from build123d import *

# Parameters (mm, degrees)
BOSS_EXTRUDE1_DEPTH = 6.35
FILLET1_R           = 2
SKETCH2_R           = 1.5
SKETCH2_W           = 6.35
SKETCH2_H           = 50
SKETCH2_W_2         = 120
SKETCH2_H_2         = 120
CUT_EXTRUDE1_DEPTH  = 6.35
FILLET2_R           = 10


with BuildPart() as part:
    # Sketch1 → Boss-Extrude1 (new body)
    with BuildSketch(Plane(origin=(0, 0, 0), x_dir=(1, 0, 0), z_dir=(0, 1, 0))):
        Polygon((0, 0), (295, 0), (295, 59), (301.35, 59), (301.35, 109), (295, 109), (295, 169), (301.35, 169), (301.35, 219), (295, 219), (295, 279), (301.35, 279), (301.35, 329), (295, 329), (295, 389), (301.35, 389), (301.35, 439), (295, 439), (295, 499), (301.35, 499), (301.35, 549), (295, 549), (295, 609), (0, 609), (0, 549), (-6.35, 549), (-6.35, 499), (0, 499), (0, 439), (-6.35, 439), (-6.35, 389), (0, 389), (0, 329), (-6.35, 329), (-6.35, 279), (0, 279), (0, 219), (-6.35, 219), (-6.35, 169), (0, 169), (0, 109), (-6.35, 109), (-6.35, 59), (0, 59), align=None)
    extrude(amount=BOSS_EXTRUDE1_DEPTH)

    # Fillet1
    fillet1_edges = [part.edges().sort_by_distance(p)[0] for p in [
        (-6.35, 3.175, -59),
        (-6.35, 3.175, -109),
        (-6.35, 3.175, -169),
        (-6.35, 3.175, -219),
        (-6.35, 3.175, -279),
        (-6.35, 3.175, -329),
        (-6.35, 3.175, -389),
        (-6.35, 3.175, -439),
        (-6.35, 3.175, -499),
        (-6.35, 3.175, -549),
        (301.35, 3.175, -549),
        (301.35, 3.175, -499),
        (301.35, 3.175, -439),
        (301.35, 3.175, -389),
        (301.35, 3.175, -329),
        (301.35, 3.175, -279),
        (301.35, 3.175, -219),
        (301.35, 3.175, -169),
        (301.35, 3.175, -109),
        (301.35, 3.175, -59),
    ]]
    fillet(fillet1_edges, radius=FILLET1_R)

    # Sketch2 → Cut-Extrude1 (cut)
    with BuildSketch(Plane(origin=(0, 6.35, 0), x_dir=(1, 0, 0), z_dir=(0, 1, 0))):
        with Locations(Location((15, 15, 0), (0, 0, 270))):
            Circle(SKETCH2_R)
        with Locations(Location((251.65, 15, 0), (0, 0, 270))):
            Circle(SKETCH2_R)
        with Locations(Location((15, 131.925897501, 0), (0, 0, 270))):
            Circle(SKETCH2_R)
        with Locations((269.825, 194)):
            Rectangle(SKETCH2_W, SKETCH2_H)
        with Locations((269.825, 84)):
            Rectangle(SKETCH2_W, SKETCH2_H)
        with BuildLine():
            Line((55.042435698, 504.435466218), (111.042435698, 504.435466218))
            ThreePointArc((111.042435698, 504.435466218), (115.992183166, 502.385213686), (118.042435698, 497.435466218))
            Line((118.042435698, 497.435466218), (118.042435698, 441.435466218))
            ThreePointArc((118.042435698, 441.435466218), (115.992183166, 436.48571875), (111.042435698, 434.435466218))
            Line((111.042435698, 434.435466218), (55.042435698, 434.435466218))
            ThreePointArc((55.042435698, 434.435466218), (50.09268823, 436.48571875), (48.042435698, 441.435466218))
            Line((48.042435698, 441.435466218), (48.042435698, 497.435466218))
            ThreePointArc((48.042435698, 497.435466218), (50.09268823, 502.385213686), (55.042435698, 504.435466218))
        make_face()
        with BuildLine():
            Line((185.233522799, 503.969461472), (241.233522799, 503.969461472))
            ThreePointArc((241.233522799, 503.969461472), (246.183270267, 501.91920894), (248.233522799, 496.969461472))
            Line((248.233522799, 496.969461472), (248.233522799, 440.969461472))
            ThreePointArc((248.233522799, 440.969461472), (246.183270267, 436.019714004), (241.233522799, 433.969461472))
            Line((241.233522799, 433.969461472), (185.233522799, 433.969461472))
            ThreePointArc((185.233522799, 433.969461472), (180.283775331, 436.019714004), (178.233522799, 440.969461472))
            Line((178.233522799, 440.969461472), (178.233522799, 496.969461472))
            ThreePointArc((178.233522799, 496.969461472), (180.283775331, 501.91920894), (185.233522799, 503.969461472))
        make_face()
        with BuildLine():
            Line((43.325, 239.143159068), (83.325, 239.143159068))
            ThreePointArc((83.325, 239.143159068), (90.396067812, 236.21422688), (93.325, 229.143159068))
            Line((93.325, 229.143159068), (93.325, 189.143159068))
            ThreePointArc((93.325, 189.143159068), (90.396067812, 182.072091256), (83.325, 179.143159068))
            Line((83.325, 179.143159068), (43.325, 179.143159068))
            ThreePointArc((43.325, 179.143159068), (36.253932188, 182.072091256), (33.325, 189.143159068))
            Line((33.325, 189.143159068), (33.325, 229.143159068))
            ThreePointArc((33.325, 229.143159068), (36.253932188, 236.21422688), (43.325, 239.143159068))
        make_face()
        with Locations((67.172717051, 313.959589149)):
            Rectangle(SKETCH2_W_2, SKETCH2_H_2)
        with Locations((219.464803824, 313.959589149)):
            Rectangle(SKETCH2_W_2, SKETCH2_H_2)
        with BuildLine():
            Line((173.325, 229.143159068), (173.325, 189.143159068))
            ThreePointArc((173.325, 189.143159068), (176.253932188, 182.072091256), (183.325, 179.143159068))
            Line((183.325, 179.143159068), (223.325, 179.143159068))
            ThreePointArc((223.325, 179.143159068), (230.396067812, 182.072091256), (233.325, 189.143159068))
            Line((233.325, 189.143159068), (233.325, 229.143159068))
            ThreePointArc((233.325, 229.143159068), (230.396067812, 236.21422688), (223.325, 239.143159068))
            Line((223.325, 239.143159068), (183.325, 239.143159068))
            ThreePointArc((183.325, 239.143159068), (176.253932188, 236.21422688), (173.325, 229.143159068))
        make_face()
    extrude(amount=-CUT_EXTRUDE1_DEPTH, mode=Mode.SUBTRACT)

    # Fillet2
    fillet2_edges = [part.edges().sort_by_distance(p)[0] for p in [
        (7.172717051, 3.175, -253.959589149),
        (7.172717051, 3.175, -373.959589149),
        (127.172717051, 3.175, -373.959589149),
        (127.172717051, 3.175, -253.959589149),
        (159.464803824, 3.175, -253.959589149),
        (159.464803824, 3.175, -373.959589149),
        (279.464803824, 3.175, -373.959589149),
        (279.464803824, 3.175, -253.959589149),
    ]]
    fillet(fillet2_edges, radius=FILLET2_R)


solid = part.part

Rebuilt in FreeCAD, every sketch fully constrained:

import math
import FreeCAD as App
import Part
import Sketcher


def edges_at(feature, points):
    """Names of the edges that pass closest to the given points."""
    edges = feature.Shape.Edges
    near = lambda p: min(range(len(edges)), key=lambda i: edges[i].distToShape(Part.Vertex(*p))[0])
    return sorted({f"Edge{near(p) + 1}" for p in points})

doc = App.newDocument("Part")
params = doc.addObject("Spreadsheet::Sheet", "Params")
for row, (alias, value) in enumerate([
    ("sketch1_width", "295 mm"),
    ("sketch1_height", "59 mm"),
    ("sketch1_height2", "50 mm"),
    ("sketch1_height3", "60 mm"),
    ("sketch1_width2", "6.35 mm"),
    ("pad1_length", "6.35 mm"),
    ("fillet_radius", "2 mm"),
    ("sketch2_diameter", "3 mm"),
    ("sketch2_radius", "7 mm"),
    ("sketch2_radius2", "10 mm"),
    ("sketch2_width", "56 mm"),
    ("sketch2_width2", "40 mm"),
    ("pocket1_length", "6.35 mm"),
    ("fillet2_radius", "10 mm"),
], start=1):
    params.set(f"A{row}", alias)
    params.set(f"B{row}", "=" + value)
    params.setAlias(f"B{row}", alias)

body = doc.addObject("PartDesign::Body", "Body")

# Sketch on XZ plane
sketch1 = body.newObject("Sketcher::SketchObject", "Sketch")
sketch1.AttachmentSupport = (doc.getObject("XZ_Plane"), [""])
sketch1.MapMode = "FlatFace"
sketch1.addGeometry(Part.LineSegment(App.Vector(0, 0, 0), App.Vector(295, 0, 0)), False)
sketch1.addGeometry(Part.LineSegment(App.Vector(295, 0, 0), App.Vector(295, -59, 0)), False)
sketch1.addGeometry(Part.LineSegment(App.Vector(295, -59, 0), App.Vector(301, -59, 0)), False)
sketch1.addGeometry(Part.LineSegment(App.Vector(301, -59, 0), App.Vector(301, -109, 0)), False)
sketch1.addGeometry(Part.LineSegment(App.Vector(301, -109, 0), App.Vector(295, -109, 0)), False)
sketch1.addGeometry(Part.LineSegment(App.Vector(295, -109, 0), App.Vector(295, -169, 0)), False)
sketch1.addGeometry(Part.LineSegment(App.Vector(295, -169, 0), App.Vector(301, -169, 0)), False)
sketch1.addGeometry(Part.LineSegment(App.Vector(301, -169, 0), App.Vector(301, -219, 0)), False)
sketch1.addGeometry(Part.LineSegment(App.Vector(301, -219, 0), App.Vector(295, -219, 0)), False)
sketch1.addGeometry(Part.LineSegment(App.Vector(295, -219, 0), App.Vector(295, -279, 0)), False)
sketch1.addGeometry(Part.LineSegment(App.Vector(295, -279, 0), App.Vector(301, -279, 0)), False)
sketch1.addGeometry(Part.LineSegment(App.Vector(301, -279, 0), App.Vector(301, -329, 0)), False)
sketch1.addGeometry(Part.LineSegment(App.Vector(301, -329, 0), App.Vector(295, -329, 0)), False)
sketch1.addGeometry(Part.LineSegment(App.Vector(295, -329, 0), App.Vector(295, -389, 0)), False)
sketch1.addGeometry(Part.LineSegment(App.Vector(295, -389, 0), App.Vector(301, -389, 0)), False)
sketch1.addGeometry(Part.LineSegment(App.Vector(301, -389, 0), App.Vector(301, -439, 0)), False)
sketch1.addGeometry(Part.LineSegment(App.Vector(301, -439, 0), App.Vector(295, -439, 0)), False)
sketch1.addGeometry(Part.LineSegment(App.Vector(295, -439, 0), App.Vector(295, -499, 0)), False)
sketch1.addGeometry(Part.LineSegment(App.Vector(295, -499, 0), App.Vector(301, -499, 0)), False)
sketch1.addGeometry(Part.LineSegment(App.Vector(301, -499, 0), App.Vector(301, -549, 0)), False)
sketch1.addGeometry(Part.LineSegment(App.Vector(301, -549, 0), App.Vector(295, -549, 0)), False)
sketch1.addGeometry(Part.LineSegment(App.Vector(295, -549, 0), App.Vector(295, -609, 0)), False)
sketch1.addGeometry(Part.LineSegment(App.Vector(295, -609, 0), App.Vector(0, -609, 0)), False)
sketch1.addGeometry(Part.LineSegment(App.Vector(0, -609, 0), App.Vector(0, -549, 0)), False)
sketch1.addGeometry(Part.LineSegment(App.Vector(0, -549, 0), App.Vector(-6, -549, 0)), False)
sketch1.addGeometry(Part.LineSegment(App.Vector(-6, -549, 0), App.Vector(-6, -499, 0)), False)
sketch1.addGeometry(Part.LineSegment(App.Vector(-6, -499, 0), App.Vector(0, -499, 0)), False)
sketch1.addGeometry(Part.LineSegment(App.Vector(0, -499, 0), App.Vector(0, -439, 0)), False)
sketch1.addGeometry(Part.LineSegment(App.Vector(0, -439, 0), App.Vector(-6, -439, 0)), False)
sketch1.addGeometry(Part.LineSegment(App.Vector(-6, -439, 0), App.Vector(-6, -389, 0)), False)
sketch1.addGeometry(Part.LineSegment(App.Vector(-6, -389, 0), App.Vector(0, -389, 0)), False)
sketch1.addGeometry(Part.LineSegment(App.Vector(0, -389, 0), App.Vector(0, -329, 0)), False)
sketch1.addGeometry(Part.LineSegment(App.Vector(0, -329, 0), App.Vector(-6, -329, 0)), False)
sketch1.addGeometry(Part.LineSegment(App.Vector(-6, -329, 0), App.Vector(-6, -279, 0)), False)
sketch1.addGeometry(Part.LineSegment(App.Vector(-6, -279, 0), App.Vector(0, -279, 0)), False)
sketch1.addGeometry(Part.LineSegment(App.Vector(0, -279, 0), App.Vector(0, -219, 0)), False)
sketch1.addGeometry(Part.LineSegment(App.Vector(0, -219, 0), App.Vector(-6, -219, 0)), False)
sketch1.addGeometry(Part.LineSegment(App.Vector(-6, -219, 0), App.Vector(-6, -169, 0)), False)
sketch1.addGeometry(Part.LineSegment(App.Vector(-6, -169, 0), App.Vector(0, -169, 0)), False)
sketch1.addGeometry(Part.LineSegment(App.Vector(0, -169, 0), App.Vector(0, -109, 0)), False)
sketch1.addGeometry(Part.LineSegment(App.Vector(0, -109, 0), App.Vector(-6, -109, 0)), False)
sketch1.addGeometry(Part.LineSegment(App.Vector(-6, -109, 0), App.Vector(-6, -59, 0)), False)
sketch1.addGeometry(Part.LineSegment(App.Vector(-6, -59, 0), App.Vector(0, -59, 0)), False)
sketch1.addGeometry(Part.LineSegment(App.Vector(0, -59, 0), App.Vector(0, 0, 0)), False)
sketch1.addConstraint(Sketcher.Constraint("Coincident", 0, 2, 1, 1))
sketch1.addConstraint(Sketcher.Constraint("Coincident", 1, 2, 2, 1))
sketch1.addConstraint(Sketcher.Constraint("Coincident", 2, 2, 3, 1))
sketch1.addConstraint(Sketcher.Constraint("Coincident", 3, 2, 4, 1))
sketch1.addConstraint(Sketcher.Constraint("Coincident", 4, 2, 5, 1))
sketch1.addConstraint(Sketcher.Constraint("Coincident", 5, 2, 6, 1))
sketch1.addConstraint(Sketcher.Constraint("Coincident", 6, 2, 7, 1))
sketch1.addConstraint(Sketcher.Constraint("Coincident", 7, 2, 8, 1))
sketch1.addConstraint(Sketcher.Constraint("Coincident", 8, 2, 9, 1))
sketch1.addConstraint(Sketcher.Constraint("Coincident", 9, 2, 10, 1))
sketch1.addConstraint(Sketcher.Constraint("Coincident", 10, 2, 11, 1))
sketch1.addConstraint(Sketcher.Constraint("Coincident", 11, 2, 12, 1))
sketch1.addConstraint(Sketcher.Constraint("Coincident", 12, 2, 13, 1))
sketch1.addConstraint(Sketcher.Constraint("Coincident", 13, 2, 14, 1))
sketch1.addConstraint(Sketcher.Constraint("Coincident", 14, 2, 15, 1))
sketch1.addConstraint(Sketcher.Constraint("Coincident", 15, 2, 16, 1))
sketch1.addConstraint(Sketcher.Constraint("Coincident", 16, 2, 17, 1))
sketch1.addConstraint(Sketcher.Constraint("Coincident", 17, 2, 18, 1))
sketch1.addConstraint(Sketcher.Constraint("Coincident", 18, 2, 19, 1))
sketch1.addConstraint(Sketcher.Constraint("Coincident", 19, 2, 20, 1))
sketch1.addConstraint(Sketcher.Constraint("Coincident", 20, 2, 21, 1))
sketch1.addConstraint(Sketcher.Constraint("Coincident", 21, 2, 22, 1))
sketch1.addConstraint(Sketcher.Constraint("Coincident", 22, 2, 23, 1))
sketch1.addConstraint(Sketcher.Constraint("Coincident", 23, 2, 24, 1))
sketch1.addConstraint(Sketcher.Constraint("Coincident", 24, 2, 25, 1))
sketch1.addConstraint(Sketcher.Constraint("Coincident", 25, 2, 26, 1))
sketch1.addConstraint(Sketcher.Constraint("Coincident", 26, 2, 27, 1))
sketch1.addConstraint(Sketcher.Constraint("Coincident", 27, 2, 28, 1))
sketch1.addConstraint(Sketcher.Constraint("Coincident", 28, 2, 29, 1))
sketch1.addConstraint(Sketcher.Constraint("Coincident", 29, 2, 30, 1))
sketch1.addConstraint(Sketcher.Constraint("Coincident", 30, 2, 31, 1))
sketch1.addConstraint(Sketcher.Constraint("Coincident", 31, 2, 32, 1))
sketch1.addConstraint(Sketcher.Constraint("Coincident", 32, 2, 33, 1))
sketch1.addConstraint(Sketcher.Constraint("Coincident", 33, 2, 34, 1))
sketch1.addConstraint(Sketcher.Constraint("Coincident", 34, 2, 35, 1))
sketch1.addConstraint(Sketcher.Constraint("Coincident", 35, 2, 36, 1))
sketch1.addConstraint(Sketcher.Constraint("Coincident", 36, 2, 37, 1))
sketch1.addConstraint(Sketcher.Constraint("Coincident", 37, 2, 38, 1))
sketch1.addConstraint(Sketcher.Constraint("Coincident", 38, 2, 39, 1))
sketch1.addConstraint(Sketcher.Constraint("Coincident", 39, 2, 40, 1))
sketch1.addConstraint(Sketcher.Constraint("Coincident", 40, 2, 41, 1))
sketch1.addConstraint(Sketcher.Constraint("Coincident", 41, 2, 42, 1))
sketch1.addConstraint(Sketcher.Constraint("Coincident", 42, 2, 43, 1))
sketch1.addConstraint(Sketcher.Constraint("Coincident", 43, 2, 0, 1))
sketch1.addConstraint(Sketcher.Constraint("Horizontal", 0))
sketch1.addConstraint(Sketcher.Constraint("Vertical", 1))
sketch1.addConstraint(Sketcher.Constraint("Horizontal", 2))
sketch1.addConstraint(Sketcher.Constraint("Vertical", 3))
sketch1.addConstraint(Sketcher.Constraint("Horizontal", 4))
sketch1.addConstraint(Sketcher.Constraint("Vertical", 5))
sketch1.addConstraint(Sketcher.Constraint("Horizontal", 6))
sketch1.addConstraint(Sketcher.Constraint("Vertical", 7))
sketch1.addConstraint(Sketcher.Constraint("Horizontal", 8))
sketch1.addConstraint(Sketcher.Constraint("Vertical", 9))
sketch1.addConstraint(Sketcher.Constraint("Horizontal", 10))
sketch1.addConstraint(Sketcher.Constraint("Vertical", 11))
sketch1.addConstraint(Sketcher.Constraint("Horizontal", 12))
sketch1.addConstraint(Sketcher.Constraint("Vertical", 13))
sketch1.addConstraint(Sketcher.Constraint("Horizontal", 14))
sketch1.addConstraint(Sketcher.Constraint("Vertical", 15))
sketch1.addConstraint(Sketcher.Constraint("Horizontal", 16))
sketch1.addConstraint(Sketcher.Constraint("Vertical", 17))
sketch1.addConstraint(Sketcher.Constraint("Horizontal", 18))
sketch1.addConstraint(Sketcher.Constraint("Vertical", 19))
sketch1.addConstraint(Sketcher.Constraint("Horizontal", 20))
sketch1.addConstraint(Sketcher.Constraint("Vertical", 21))
sketch1.addConstraint(Sketcher.Constraint("Horizontal", 22))
sketch1.addConstraint(Sketcher.Constraint("Vertical", 23))
sketch1.addConstraint(Sketcher.Constraint("Horizontal", 24))
sketch1.addConstraint(Sketcher.Constraint("Vertical", 25))
sketch1.addConstraint(Sketcher.Constraint("Horizontal", 26))
sketch1.addConstraint(Sketcher.Constraint("Vertical", 27))
sketch1.addConstraint(Sketcher.Constraint("Horizontal", 28))
sketch1.addConstraint(Sketcher.Constraint("Vertical", 29))
sketch1.addConstraint(Sketcher.Constraint("Horizontal", 30))
sketch1.addConstraint(Sketcher.Constraint("Vertical", 31))
sketch1.addConstraint(Sketcher.Constraint("Horizontal", 32))
sketch1.addConstraint(Sketcher.Constraint("Vertical", 33))
sketch1.addConstraint(Sketcher.Constraint("Horizontal", 34))
sketch1.addConstraint(Sketcher.Constraint("Vertical", 35))
sketch1.addConstraint(Sketcher.Constraint("Horizontal", 36))
sketch1.addConstraint(Sketcher.Constraint("Vertical", 37))
sketch1.addConstraint(Sketcher.Constraint("Horizontal", 38))
sketch1.addConstraint(Sketcher.Constraint("Vertical", 39))
sketch1.addConstraint(Sketcher.Constraint("Horizontal", 40))
sketch1.addConstraint(Sketcher.Constraint("Vertical", 41))
sketch1.addConstraint(Sketcher.Constraint("Horizontal", 42))
sketch1.addConstraint(Sketcher.Constraint("Vertical", 43))
sketch1.addConstraint(Sketcher.Constraint("Coincident", 43, 2, -1, 1))
sketch1.addConstraint(Sketcher.Constraint("PointOnObject", 22, 2, -2))
sketch1.addConstraint(Sketcher.Constraint("PointOnObject", 26, 2, -2))
sketch1.addConstraint(Sketcher.Constraint("PointOnObject", 30, 2, -2))
sketch1.addConstraint(Sketcher.Constraint("PointOnObject", 34, 2, -2))
sketch1.addConstraint(Sketcher.Constraint("PointOnObject", 38, 2, -2))
sketch1.addConstraint(Sketcher.Constraint("Horizontal", 20, 2, 23, 2))
sketch1.addConstraint(Sketcher.Constraint("Horizontal", 18, 2, 25, 2))
sketch1.addConstraint(Sketcher.Constraint("Horizontal", 16, 2, 27, 2))
sketch1.addConstraint(Sketcher.Constraint("Horizontal", 14, 2, 29, 2))
sketch1.addConstraint(Sketcher.Constraint("Horizontal", 12, 2, 31, 2))
sketch1.addConstraint(Sketcher.Constraint("Horizontal", 10, 2, 33, 2))
sketch1.addConstraint(Sketcher.Constraint("Horizontal", 8, 2, 35, 2))
sketch1.addConstraint(Sketcher.Constraint("Horizontal", 6, 2, 37, 2))
sketch1.addConstraint(Sketcher.Constraint("Horizontal", 4, 2, 39, 2))
sketch1.addConstraint(Sketcher.Constraint("Horizontal", 2, 2, 41, 2))
sketch1.addConstraint(Sketcher.Constraint("Vertical", 1, 2, 4, 2))
sketch1.addConstraint(Sketcher.Constraint("Vertical", 3, 2, 6, 2))
sketch1.addConstraint(Sketcher.Constraint("Vertical", 5, 2, 8, 2))
sketch1.addConstraint(Sketcher.Constraint("Vertical", 7, 2, 10, 2))
sketch1.addConstraint(Sketcher.Constraint("Vertical", 9, 2, 12, 2))
sketch1.addConstraint(Sketcher.Constraint("Vertical", 11, 2, 14, 2))
sketch1.addConstraint(Sketcher.Constraint("Vertical", 13, 2, 16, 2))
sketch1.addConstraint(Sketcher.Constraint("Vertical", 15, 2, 18, 2))
sketch1.addConstraint(Sketcher.Constraint("Vertical", 17, 2, 20, 2))
sketch1.addConstraint(Sketcher.Constraint("Vertical", 25, 2, 28, 2))
sketch1.addConstraint(Sketcher.Constraint("Vertical", 29, 2, 32, 2))
sketch1.addConstraint(Sketcher.Constraint("Vertical", 33, 2, 36, 2))
sketch1.addConstraint(Sketcher.Constraint("Vertical", 37, 2, 40, 2))
sketch1.addConstraint(Sketcher.Constraint("Equal", 20, 24))
sketch1.addConstraint(Sketcher.Constraint("Equal", 3, 7))
sketch1.addConstraint(Sketcher.Constraint("Equal", 5, 9))
sketch1.addConstraint(Sketcher.Constraint("Equal", 7, 11))
sketch1.addConstraint(Sketcher.Constraint("Equal", 9, 13))
sketch1.addConstraint(Sketcher.Constraint("Equal", 11, 15))
sketch1.addConstraint(Sketcher.Constraint("Equal", 13, 17))
sketch1.addConstraint(Sketcher.Constraint("Equal", 15, 19))
sketch1.addConstraint(Sketcher.Constraint("Equal", 17, 21))
sketch1.addConstraint(Sketcher.Constraint("DistanceX", 0, 1, 0, 2, 295.0))
sketch1.addConstraint(Sketcher.Constraint("DistanceY", 1, 2, 1, 1, 59.0))
sketch1.addConstraint(Sketcher.Constraint("DistanceY", 3, 2, 3, 1, 50.0))
sketch1.addConstraint(Sketcher.Constraint("DistanceY", 5, 2, 5, 1, 60.0))
sketch1.addConstraint(Sketcher.Constraint("DistanceX", 2, 1, 2, 2, 6.35))
sketch1.setExpression("Constraints[126]", "Params.sketch1_width")
sketch1.setExpression("Constraints[127]", "Params.sketch1_height")
sketch1.setExpression("Constraints[128]", "Params.sketch1_height2")
sketch1.setExpression("Constraints[129]", "Params.sketch1_height3")
sketch1.setExpression("Constraints[130]", "Params.sketch1_width2")
pad1 = body.newObject("PartDesign::Pad", "Pad")
pad1.Profile = sketch1
pad1.setExpression("Length", "Params.pad1_length")
pad1.Reversed = True
doc.recompute()

fillet = body.newObject("PartDesign::Fillet", "Fillet")
fillet.Base = (pad1, edges_at(pad1, [
    (-6.35, 3.175, -59),
    (-6.35, 3.175, -109),
    (-6.35, 3.175, -169),
    (-6.35, 3.175, -219),
    (-6.35, 3.175, -279),
    (-6.35, 3.175, -329),
    (-6.35, 3.175, -389),
    (-6.35, 3.175, -439),
    (-6.35, 3.175, -499),
    (-6.35, 3.175, -549),
    (301.35, 3.175, -549),
    (301.35, 3.175, -499),
    (301.35, 3.175, -439),
    (301.35, 3.175, -389),
    (301.35, 3.175, -329),
    (301.35, 3.175, -279),
    (301.35, 3.175, -219),
    (301.35, 3.175, -169),
    (301.35, 3.175, -109),
    (301.35, 3.175, -59),
]))
fillet.setExpression("Radius", "Params.fillet_radius")

# Sketch on XZ plane
sketch2 = body.newObject("Sketcher::SketchObject", "Sketch001")
sketch2.AttachmentSupport = (doc.getObject("XZ_Plane"), [""])
sketch2.MapMode = "FlatFace"
sketch2.AttachmentOffset = App.Placement(App.Vector(0, 0, -6.35), App.Rotation())
sketch2.addGeometry(Part.Circle(App.Vector(15, -15, 0), App.Vector(0, 0, 1), 1.5), False)
sketch2.addGeometry(Part.Circle(App.Vector(251.7, -15, 0), App.Vector(0, 0, 1), 1.5), False)
sketch2.addGeometry(Part.Circle(App.Vector(15, -131.9, 0), App.Vector(0, 0, 1), 1.5), False)
sketch2.addGeometry(Part.LineSegment(App.Vector(266.6, -219, 0), App.Vector(266.6, -169, 0)), False)
sketch2.addGeometry(Part.LineSegment(App.Vector(266.6, -169, 0), App.Vector(273, -169, 0)), False)
sketch2.addGeometry(Part.LineSegment(App.Vector(273, -169, 0), App.Vector(273, -219, 0)), False)
sketch2.addGeometry(Part.LineSegment(App.Vector(273, -219, 0), App.Vector(266.6, -219, 0)), False)
sketch2.addGeometry(Part.LineSegment(App.Vector(266.6, -109, 0), App.Vector(266.6, -59, 0)), False)
sketch2.addGeometry(Part.LineSegment(App.Vector(266.6, -59, 0), App.Vector(273, -59, 0)), False)
sketch2.addGeometry(Part.LineSegment(App.Vector(273, -59, 0), App.Vector(273, -109, 0)), False)
sketch2.addGeometry(Part.LineSegment(App.Vector(273, -109, 0), App.Vector(266.6, -109, 0)), False)
sketch2.addGeometry(Part.LineSegment(App.Vector(111, -504.4, 0), App.Vector(55, -504.4, 0)), False)
sketch2.addGeometry(Part.ArcOfCircle(Part.Circle(App.Vector(55, -497.4, 0), App.Vector(0, 0, 1), 7), math.radians(-180), math.radians(-90)), False)
sketch2.addGeometry(Part.LineSegment(App.Vector(48, -497.4, 0), App.Vector(48, -441.4, 0)), False)
sketch2.addGeometry(Part.ArcOfCircle(Part.Circle(App.Vector(55, -441.4, 0), App.Vector(0, 0, 1), 7), math.radians(90), math.radians(180)), False)
sketch2.addGeometry(Part.LineSegment(App.Vector(55, -434.4, 0), App.Vector(111, -434.4, 0)), False)
sketch2.addGeometry(Part.ArcOfCircle(Part.Circle(App.Vector(111, -441.4, 0), App.Vector(0, 0, 1), 7), math.radians(0), math.radians(90)), False)
sketch2.addGeometry(Part.LineSegment(App.Vector(118, -441.4, 0), App.Vector(118, -497.4, 0)), False)
sketch2.addGeometry(Part.ArcOfCircle(Part.Circle(App.Vector(111, -497.4, 0), App.Vector(0, 0, 1), 7), math.radians(-90), math.radians(0)), False)
sketch2.addGeometry(Part.LineSegment(App.Vector(241.2, -504, 0), App.Vector(185.2, -504, 0)), False)
sketch2.addGeometry(Part.ArcOfCircle(Part.Circle(App.Vector(185.2, -497, 0), App.Vector(0, 0, 1), 7), math.radians(-180), math.radians(-90)), False)
sketch2.addGeometry(Part.LineSegment(App.Vector(178.2, -497, 0), App.Vector(178.2, -441, 0)), False)
sketch2.addGeometry(Part.ArcOfCircle(Part.Circle(App.Vector(185.2, -441, 0), App.Vector(0, 0, 1), 7), math.radians(90), math.radians(180)), False)
sketch2.addGeometry(Part.LineSegment(App.Vector(185.2, -434, 0), App.Vector(241.2, -434, 0)), False)
sketch2.addGeometry(Part.ArcOfCircle(Part.Circle(App.Vector(241.2, -441, 0), App.Vector(0, 0, 1), 7), math.radians(0), math.radians(90)), False)
sketch2.addGeometry(Part.LineSegment(App.Vector(248.2, -441, 0), App.Vector(248.2, -497, 0)), False)
sketch2.addGeometry(Part.ArcOfCircle(Part.Circle(App.Vector(241.2, -497, 0), App.Vector(0, 0, 1), 7), math.radians(-90), math.radians(0)), False)
sketch2.addGeometry(Part.LineSegment(App.Vector(83.3, -239.1, 0), App.Vector(43.3, -239.1, 0)), False)
sketch2.addGeometry(Part.ArcOfCircle(Part.Circle(App.Vector(43.3, -229.1, 0), App.Vector(0, 0, 1), 10), math.radians(180), math.radians(270)), False)
sketch2.addGeometry(Part.LineSegment(App.Vector(33.3, -229.1, 0), App.Vector(33.3, -189.1, 0)), False)
sketch2.addGeometry(Part.ArcOfCircle(Part.Circle(App.Vector(43.3, -189.1, 0), App.Vector(0, 0, 1), 10), math.radians(90), math.radians(180)), False)
sketch2.addGeometry(Part.LineSegment(App.Vector(43.3, -179.1, 0), App.Vector(83.3, -179.1, 0)), False)
sketch2.addGeometry(Part.ArcOfCircle(Part.Circle(App.Vector(83.3, -189.1, 0), App.Vector(0, 0, 1), 10), math.radians(0), math.radians(90)), False)
sketch2.addGeometry(Part.LineSegment(App.Vector(93.3, -189.1, 0), App.Vector(93.3, -229.1, 0)), False)
sketch2.addGeometry(Part.ArcOfCircle(Part.Circle(App.Vector(83.3, -229.1, 0), App.Vector(0, 0, 1), 10), math.radians(-90), math.radians(0)), False)
sketch2.addGeometry(Part.LineSegment(App.Vector(7.2, -374, 0), App.Vector(7.2, -254, 0)), False)
sketch2.addGeometry(Part.LineSegment(App.Vector(7.2, -254, 0), App.Vector(127.2, -254, 0)), False)
sketch2.addGeometry(Part.LineSegment(App.Vector(127.2, -254, 0), App.Vector(127.2, -374, 0)), False)
sketch2.addGeometry(Part.LineSegment(App.Vector(127.2, -374, 0), App.Vector(7.2, -374, 0)), False)
sketch2.addGeometry(Part.LineSegment(App.Vector(159.5, -374, 0), App.Vector(159.5, -254, 0)), False)
sketch2.addGeometry(Part.LineSegment(App.Vector(159.5, -254, 0), App.Vector(279.5, -254, 0)), False)
sketch2.addGeometry(Part.LineSegment(App.Vector(279.5, -254, 0), App.Vector(279.5, -374, 0)), False)
sketch2.addGeometry(Part.LineSegment(App.Vector(279.5, -374, 0), App.Vector(159.5, -374, 0)), False)
sketch2.addGeometry(Part.LineSegment(App.Vector(173.3, -229.1, 0), App.Vector(173.3, -189.1, 0)), False)
sketch2.addGeometry(Part.ArcOfCircle(Part.Circle(App.Vector(183.3, -189.1, 0), App.Vector(0, 0, 1), 10), math.radians(90), math.radians(180)), False)
sketch2.addGeometry(Part.LineSegment(App.Vector(183.3, -179.1, 0), App.Vector(223.3, -179.1, 0)), False)
sketch2.addGeometry(Part.ArcOfCircle(Part.Circle(App.Vector(223.3, -189.1, 0), App.Vector(0, 0, 1), 10), math.radians(0), math.radians(90)), False)
sketch2.addGeometry(Part.LineSegment(App.Vector(233.3, -189.1, 0), App.Vector(233.3, -229.1, 0)), False)
sketch2.addGeometry(Part.ArcOfCircle(Part.Circle(App.Vector(223.3, -229.1, 0), App.Vector(0, 0, 1), 10), math.radians(-90), math.radians(0)), False)
sketch2.addGeometry(Part.LineSegment(App.Vector(223.3, -239.1, 0), App.Vector(183.3, -239.1, 0)), False)
sketch2.addGeometry(Part.ArcOfCircle(Part.Circle(App.Vector(183.3, -229.1, 0), App.Vector(0, 0, 1), 10), math.radians(180), math.radians(270)), False)
sketch2.addConstraint(Sketcher.Constraint("Coincident", 3, 2, 4, 1))
sketch2.addConstraint(Sketcher.Constraint("Coincident", 4, 2, 5, 1))
sketch2.addConstraint(Sketcher.Constraint("Coincident", 5, 2, 6, 1))
sketch2.addConstraint(Sketcher.Constraint("Coincident", 6, 2, 3, 1))
sketch2.addConstraint(Sketcher.Constraint("Coincident", 7, 2, 8, 1))
sketch2.addConstraint(Sketcher.Constraint("Coincident", 8, 2, 9, 1))
sketch2.addConstraint(Sketcher.Constraint("Coincident", 9, 2, 10, 1))
sketch2.addConstraint(Sketcher.Constraint("Coincident", 10, 2, 7, 1))
sketch2.addConstraint(Sketcher.Constraint("Tangent", 11, 2, 12, 2))
sketch2.addConstraint(Sketcher.Constraint("Tangent", 12, 1, 13, 1))
sketch2.addConstraint(Sketcher.Constraint("Tangent", 13, 2, 14, 2))
sketch2.addConstraint(Sketcher.Constraint("Tangent", 14, 1, 15, 1))
sketch2.addConstraint(Sketcher.Constraint("Tangent", 15, 2, 16, 2))
sketch2.addConstraint(Sketcher.Constraint("Tangent", 16, 1, 17, 1))
sketch2.addConstraint(Sketcher.Constraint("Tangent", 17, 2, 18, 2))
sketch2.addConstraint(Sketcher.Constraint("Tangent", 18, 1, 11, 1))
sketch2.addConstraint(Sketcher.Constraint("Tangent", 19, 2, 20, 2))
sketch2.addConstraint(Sketcher.Constraint("Tangent", 20, 1, 21, 1))
sketch2.addConstraint(Sketcher.Constraint("Tangent", 21, 2, 22, 2))
sketch2.addConstraint(Sketcher.Constraint("Tangent", 22, 1, 23, 1))
sketch2.addConstraint(Sketcher.Constraint("Tangent", 23, 2, 24, 2))
sketch2.addConstraint(Sketcher.Constraint("Tangent", 24, 1, 25, 1))
sketch2.addConstraint(Sketcher.Constraint("Tangent", 25, 2, 26, 2))
sketch2.addConstraint(Sketcher.Constraint("Tangent", 26, 1, 19, 1))
sketch2.addConstraint(Sketcher.Constraint("Tangent", 27, 2, 28, 2))
sketch2.addConstraint(Sketcher.Constraint("Tangent", 28, 1, 29, 1))
sketch2.addConstraint(Sketcher.Constraint("Tangent", 29, 2, 30, 2))
sketch2.addConstraint(Sketcher.Constraint("Tangent", 30, 1, 31, 1))
sketch2.addConstraint(Sketcher.Constraint("Tangent", 31, 2, 32, 2))
sketch2.addConstraint(Sketcher.Constraint("Tangent", 32, 1, 33, 1))
sketch2.addConstraint(Sketcher.Constraint("Tangent", 33, 2, 34, 2))
sketch2.addConstraint(Sketcher.Constraint("Tangent", 34, 1, 27, 1))
sketch2.addConstraint(Sketcher.Constraint("Coincident", 35, 2, 36, 1))
sketch2.addConstraint(Sketcher.Constraint("Coincident", 36, 2, 37, 1))
sketch2.addConstraint(Sketcher.Constraint("Coincident", 37, 2, 38, 1))
sketch2.addConstraint(Sketcher.Constraint("Coincident", 38, 2, 35, 1))
sketch2.addConstraint(Sketcher.Constraint("Coincident", 39, 2, 40, 1))
sketch2.addConstraint(Sketcher.Constraint("Coincident", 40, 2, 41, 1))
sketch2.addConstraint(Sketcher.Constraint("Coincident", 41, 2, 42, 1))
sketch2.addConstraint(Sketcher.Constraint("Coincident", 42, 2, 39, 1))
sketch2.addConstraint(Sketcher.Constraint("Tangent", 43, 2, 44, 2))
sketch2.addConstraint(Sketcher.Constraint("Tangent", 44, 1, 45, 1))
sketch2.addConstraint(Sketcher.Constraint("Tangent", 45, 2, 46, 2))
sketch2.addConstraint(Sketcher.Constraint("Tangent", 46, 1, 47, 1))
sketch2.addConstraint(Sketcher.Constraint("Tangent", 47, 2, 48, 2))
sketch2.addConstraint(Sketcher.Constraint("Tangent", 48, 1, 49, 1))
sketch2.addConstraint(Sketcher.Constraint("Tangent", 49, 2, 50, 2))
sketch2.addConstraint(Sketcher.Constraint("Tangent", 50, 1, 43, 1))
sketch2.addConstraint(Sketcher.Constraint("Vertical", 3))
sketch2.addConstraint(Sketcher.Constraint("Horizontal", 4))
sketch2.addConstraint(Sketcher.Constraint("Vertical", 5))
sketch2.addConstraint(Sketcher.Constraint("Horizontal", 6))
sketch2.addConstraint(Sketcher.Constraint("Vertical", 7))
sketch2.addConstraint(Sketcher.Constraint("Horizontal", 8))
sketch2.addConstraint(Sketcher.Constraint("Vertical", 9))
sketch2.addConstraint(Sketcher.Constraint("Horizontal", 10))
sketch2.addConstraint(Sketcher.Constraint("Horizontal", 11))
sketch2.addConstraint(Sketcher.Constraint("Vertical", 13))
sketch2.addConstraint(Sketcher.Constraint("Horizontal", 15))
sketch2.addConstraint(Sketcher.Constraint("Vertical", 17))
sketch2.addConstraint(Sketcher.Constraint("Horizontal", 19))
sketch2.addConstraint(Sketcher.Constraint("Vertical", 21))
sketch2.addConstraint(Sketcher.Constraint("Horizontal", 23))
sketch2.addConstraint(Sketcher.Constraint("Vertical", 25))
sketch2.addConstraint(Sketcher.Constraint("Horizontal", 27))
sketch2.addConstraint(Sketcher.Constraint("Vertical", 29))
sketch2.addConstraint(Sketcher.Constraint("Horizontal", 31))
sketch2.addConstraint(Sketcher.Constraint("Vertical", 33))
sketch2.addConstraint(Sketcher.Constraint("Vertical", 35))
sketch2.addConstraint(Sketcher.Constraint("Horizontal", 36))
sketch2.addConstraint(Sketcher.Constraint("Vertical", 37))
sketch2.addConstraint(Sketcher.Constraint("Horizontal", 38))
sketch2.addConstraint(Sketcher.Constraint("Vertical", 39))
sketch2.addConstraint(Sketcher.Constraint("Horizontal", 40))
sketch2.addConstraint(Sketcher.Constraint("Vertical", 41))
sketch2.addConstraint(Sketcher.Constraint("Horizontal", 42))
sketch2.addConstraint(Sketcher.Constraint("Vertical", 43))
sketch2.addConstraint(Sketcher.Constraint("Horizontal", 45))
sketch2.addConstraint(Sketcher.Constraint("Vertical", 47))
sketch2.addConstraint(Sketcher.Constraint("Horizontal", 49))
sketch2.addConstraint(Sketcher.Constraint("Equal", 0, 1))
sketch2.addConstraint(Sketcher.Constraint("Equal", 1, 2))
sketch2.addConstraint(Sketcher.Constraint("Equal", 12, 14))
sketch2.addConstraint(Sketcher.Constraint("Equal", 14, 16))
sketch2.addConstraint(Sketcher.Constraint("Equal", 16, 18))
sketch2.addConstraint(Sketcher.Constraint("Equal", 18, 20))
sketch2.addConstraint(Sketcher.Constraint("Equal", 20, 22))
sketch2.addConstraint(Sketcher.Constraint("Equal", 22, 24))
sketch2.addConstraint(Sketcher.Constraint("Equal", 24, 26))
sketch2.addConstraint(Sketcher.Constraint("Equal", 28, 30))
sketch2.addConstraint(Sketcher.Constraint("Equal", 30, 32))
sketch2.addConstraint(Sketcher.Constraint("Equal", 32, 34))
sketch2.addConstraint(Sketcher.Constraint("Equal", 34, 44))
sketch2.addConstraint(Sketcher.Constraint("Equal", 44, 46))
sketch2.addConstraint(Sketcher.Constraint("Equal", 46, 48))
sketch2.addConstraint(Sketcher.Constraint("Equal", 48, 50))
sketch2.addConstraint(Sketcher.Constraint("Horizontal", 0, 3, 1, 3))
sketch2.addConstraint(Sketcher.Constraint("Horizontal", 32, 3, 44, 3))
sketch2.addConstraint(Sketcher.Constraint("Horizontal", 34, 3, 48, 3))
sketch2.addConstraint(Sketcher.Constraint("Horizontal", 36, 2, 39, 2))
sketch2.addConstraint(Sketcher.Constraint("Horizontal", 38, 2, 41, 2))
sketch2.addConstraint(Sketcher.Constraint("Vertical", 0, 3, 2, 3))
sketch2.addConstraint(Sketcher.Constraint("Vertical", 6, 2, 7, 2))
sketch2.addConstraint(Sketcher.Constraint("Vertical", 5, 2, 8, 2))
sketch2.addConstraint(Sketcher.Constraint("Equal", 15, 19))
sketch2.addConstraint(Sketcher.Constraint("Equal", 38, 40))
sketch2.addConstraint(Sketcher.Constraint("Equal", 31, 45))
sketch2.addConstraint(Sketcher.Constraint("Equal", 5, 7))
sketch2.addConstraint(Sketcher.Constraint("Equal", 23, 13))
sketch2.addConstraint(Sketcher.Constraint("Equal", 17, 21))
sketch2.addConstraint(Sketcher.Constraint("Equal", 49, 29))
sketch2.addConstraint(Sketcher.Constraint("Equal", 42, 35))
sketch2.addConstraint(Sketcher.Constraint("Diameter", 0, 3.0))
sketch2.addConstraint(Sketcher.Constraint("Radius", 12, 7.0))
sketch2.addConstraint(Sketcher.Constraint("Radius", 28, 10.0))
sketch2.addConstraint(Sketcher.Constraint("DistanceX", 11, 2, 11, 1, 56.0))
sketch2.addConstraint(Sketcher.Constraint("DistanceX", 27, 2, 27, 1, 40.0))
sketch2.addConstraint(Sketcher.Constraint("DistanceX", 36, 1, 36, 2, 120.0))
sketch2.addConstraint(Sketcher.Constraint("DistanceY", 3, 1, 3, 2, 50.0))
sketch2.addConstraint(Sketcher.Constraint("DistanceX", -1, 1, 0, 3, 15.0))
sketch2.addConstraint(Sketcher.Constraint("DistanceY", 0, 3, -1, 1, 15.0))
sketch2.addConstraint(Sketcher.Constraint("DistanceY", 3, 2, -1, 1, 169.0))
sketch2.addConstraint(Sketcher.Constraint("DistanceX", -1, 1, 4, 2, 273.0))
sketch2.addConstraint(Sketcher.Constraint("DistanceY", 7, 2, -1, 1, 59.0))
sketch2.addConstraint(Sketcher.Constraint("DistanceX", 4, 1, 4, 2, 6.35))
sketch2.addConstraint(Sketcher.Constraint("DistanceX", -1, 1, 1, 3, 251.65))
sketch2.addConstraint(Sketcher.Constraint("DistanceX", -1, 1, 28, 3, 43.325))
sketch2.addConstraint(Sketcher.Constraint("DistanceX", -1, 1, 44, 3, 183.325))
sketch2.addConstraint(Sketcher.Constraint("DistanceY", 20, 3, -1, 1, 496.969461))
sketch2.addConstraint(Sketcher.Constraint("DistanceY", 28, 3, -1, 1, 229.143159))
sketch2.addConstraint(Sketcher.Constraint("DistanceY", 35, 2, -1, 1, 253.959589))
sketch2.addConstraint(Sketcher.Constraint("DistanceY", 2, 3, -1, 1, 131.925898))
sketch2.addConstraint(Sketcher.Constraint("DistanceX", -1, 1, 12, 3, 55.042436))
sketch2.addConstraint(Sketcher.Constraint("DistanceY", 12, 3, -1, 1, 497.435466))
sketch2.addConstraint(Sketcher.Constraint("DistanceX", -1, 1, 20, 3, 185.233523))
sketch2.addConstraint(Sketcher.Constraint("DistanceX", -1, 1, 35, 2, 7.172717))
sketch2.addConstraint(Sketcher.Constraint("DistanceX", -1, 1, 39, 2, 159.464804))
sketch2.setExpression("Constraints[112]", "Params.sketch2_diameter")
sketch2.setExpression("Constraints[113]", "Params.sketch2_radius")
sketch2.setExpression("Constraints[114]", "Params.sketch2_radius2")
sketch2.setExpression("Constraints[115]", "Params.sketch2_width")
sketch2.setExpression("Constraints[116]", "Params.sketch2_width2")
pocket1 = body.newObject("PartDesign::Pocket", "Pocket")
pocket1.Profile = sketch2
pocket1.setExpression("Length", "Params.pocket1_length")
pocket1.Reversed = True
doc.recompute()

fillet2 = body.newObject("PartDesign::Fillet", "Fillet001")
fillet2.Base = (pocket1, edges_at(pocket1, [
    (7.173, 3.175, -253.96),
    (7.173, 3.175, -373.96),
    (127.173, 3.175, -373.96),
    (127.173, 3.175, -253.96),
    (159.465, 3.175, -253.96),
    (159.465, 3.175, -373.96),
    (279.465, 3.175, -373.96),
    (279.465, 3.175, -253.96),
]))
fillet2.setExpression("Radius", "Params.fillet2_radius")

doc.recompute()
